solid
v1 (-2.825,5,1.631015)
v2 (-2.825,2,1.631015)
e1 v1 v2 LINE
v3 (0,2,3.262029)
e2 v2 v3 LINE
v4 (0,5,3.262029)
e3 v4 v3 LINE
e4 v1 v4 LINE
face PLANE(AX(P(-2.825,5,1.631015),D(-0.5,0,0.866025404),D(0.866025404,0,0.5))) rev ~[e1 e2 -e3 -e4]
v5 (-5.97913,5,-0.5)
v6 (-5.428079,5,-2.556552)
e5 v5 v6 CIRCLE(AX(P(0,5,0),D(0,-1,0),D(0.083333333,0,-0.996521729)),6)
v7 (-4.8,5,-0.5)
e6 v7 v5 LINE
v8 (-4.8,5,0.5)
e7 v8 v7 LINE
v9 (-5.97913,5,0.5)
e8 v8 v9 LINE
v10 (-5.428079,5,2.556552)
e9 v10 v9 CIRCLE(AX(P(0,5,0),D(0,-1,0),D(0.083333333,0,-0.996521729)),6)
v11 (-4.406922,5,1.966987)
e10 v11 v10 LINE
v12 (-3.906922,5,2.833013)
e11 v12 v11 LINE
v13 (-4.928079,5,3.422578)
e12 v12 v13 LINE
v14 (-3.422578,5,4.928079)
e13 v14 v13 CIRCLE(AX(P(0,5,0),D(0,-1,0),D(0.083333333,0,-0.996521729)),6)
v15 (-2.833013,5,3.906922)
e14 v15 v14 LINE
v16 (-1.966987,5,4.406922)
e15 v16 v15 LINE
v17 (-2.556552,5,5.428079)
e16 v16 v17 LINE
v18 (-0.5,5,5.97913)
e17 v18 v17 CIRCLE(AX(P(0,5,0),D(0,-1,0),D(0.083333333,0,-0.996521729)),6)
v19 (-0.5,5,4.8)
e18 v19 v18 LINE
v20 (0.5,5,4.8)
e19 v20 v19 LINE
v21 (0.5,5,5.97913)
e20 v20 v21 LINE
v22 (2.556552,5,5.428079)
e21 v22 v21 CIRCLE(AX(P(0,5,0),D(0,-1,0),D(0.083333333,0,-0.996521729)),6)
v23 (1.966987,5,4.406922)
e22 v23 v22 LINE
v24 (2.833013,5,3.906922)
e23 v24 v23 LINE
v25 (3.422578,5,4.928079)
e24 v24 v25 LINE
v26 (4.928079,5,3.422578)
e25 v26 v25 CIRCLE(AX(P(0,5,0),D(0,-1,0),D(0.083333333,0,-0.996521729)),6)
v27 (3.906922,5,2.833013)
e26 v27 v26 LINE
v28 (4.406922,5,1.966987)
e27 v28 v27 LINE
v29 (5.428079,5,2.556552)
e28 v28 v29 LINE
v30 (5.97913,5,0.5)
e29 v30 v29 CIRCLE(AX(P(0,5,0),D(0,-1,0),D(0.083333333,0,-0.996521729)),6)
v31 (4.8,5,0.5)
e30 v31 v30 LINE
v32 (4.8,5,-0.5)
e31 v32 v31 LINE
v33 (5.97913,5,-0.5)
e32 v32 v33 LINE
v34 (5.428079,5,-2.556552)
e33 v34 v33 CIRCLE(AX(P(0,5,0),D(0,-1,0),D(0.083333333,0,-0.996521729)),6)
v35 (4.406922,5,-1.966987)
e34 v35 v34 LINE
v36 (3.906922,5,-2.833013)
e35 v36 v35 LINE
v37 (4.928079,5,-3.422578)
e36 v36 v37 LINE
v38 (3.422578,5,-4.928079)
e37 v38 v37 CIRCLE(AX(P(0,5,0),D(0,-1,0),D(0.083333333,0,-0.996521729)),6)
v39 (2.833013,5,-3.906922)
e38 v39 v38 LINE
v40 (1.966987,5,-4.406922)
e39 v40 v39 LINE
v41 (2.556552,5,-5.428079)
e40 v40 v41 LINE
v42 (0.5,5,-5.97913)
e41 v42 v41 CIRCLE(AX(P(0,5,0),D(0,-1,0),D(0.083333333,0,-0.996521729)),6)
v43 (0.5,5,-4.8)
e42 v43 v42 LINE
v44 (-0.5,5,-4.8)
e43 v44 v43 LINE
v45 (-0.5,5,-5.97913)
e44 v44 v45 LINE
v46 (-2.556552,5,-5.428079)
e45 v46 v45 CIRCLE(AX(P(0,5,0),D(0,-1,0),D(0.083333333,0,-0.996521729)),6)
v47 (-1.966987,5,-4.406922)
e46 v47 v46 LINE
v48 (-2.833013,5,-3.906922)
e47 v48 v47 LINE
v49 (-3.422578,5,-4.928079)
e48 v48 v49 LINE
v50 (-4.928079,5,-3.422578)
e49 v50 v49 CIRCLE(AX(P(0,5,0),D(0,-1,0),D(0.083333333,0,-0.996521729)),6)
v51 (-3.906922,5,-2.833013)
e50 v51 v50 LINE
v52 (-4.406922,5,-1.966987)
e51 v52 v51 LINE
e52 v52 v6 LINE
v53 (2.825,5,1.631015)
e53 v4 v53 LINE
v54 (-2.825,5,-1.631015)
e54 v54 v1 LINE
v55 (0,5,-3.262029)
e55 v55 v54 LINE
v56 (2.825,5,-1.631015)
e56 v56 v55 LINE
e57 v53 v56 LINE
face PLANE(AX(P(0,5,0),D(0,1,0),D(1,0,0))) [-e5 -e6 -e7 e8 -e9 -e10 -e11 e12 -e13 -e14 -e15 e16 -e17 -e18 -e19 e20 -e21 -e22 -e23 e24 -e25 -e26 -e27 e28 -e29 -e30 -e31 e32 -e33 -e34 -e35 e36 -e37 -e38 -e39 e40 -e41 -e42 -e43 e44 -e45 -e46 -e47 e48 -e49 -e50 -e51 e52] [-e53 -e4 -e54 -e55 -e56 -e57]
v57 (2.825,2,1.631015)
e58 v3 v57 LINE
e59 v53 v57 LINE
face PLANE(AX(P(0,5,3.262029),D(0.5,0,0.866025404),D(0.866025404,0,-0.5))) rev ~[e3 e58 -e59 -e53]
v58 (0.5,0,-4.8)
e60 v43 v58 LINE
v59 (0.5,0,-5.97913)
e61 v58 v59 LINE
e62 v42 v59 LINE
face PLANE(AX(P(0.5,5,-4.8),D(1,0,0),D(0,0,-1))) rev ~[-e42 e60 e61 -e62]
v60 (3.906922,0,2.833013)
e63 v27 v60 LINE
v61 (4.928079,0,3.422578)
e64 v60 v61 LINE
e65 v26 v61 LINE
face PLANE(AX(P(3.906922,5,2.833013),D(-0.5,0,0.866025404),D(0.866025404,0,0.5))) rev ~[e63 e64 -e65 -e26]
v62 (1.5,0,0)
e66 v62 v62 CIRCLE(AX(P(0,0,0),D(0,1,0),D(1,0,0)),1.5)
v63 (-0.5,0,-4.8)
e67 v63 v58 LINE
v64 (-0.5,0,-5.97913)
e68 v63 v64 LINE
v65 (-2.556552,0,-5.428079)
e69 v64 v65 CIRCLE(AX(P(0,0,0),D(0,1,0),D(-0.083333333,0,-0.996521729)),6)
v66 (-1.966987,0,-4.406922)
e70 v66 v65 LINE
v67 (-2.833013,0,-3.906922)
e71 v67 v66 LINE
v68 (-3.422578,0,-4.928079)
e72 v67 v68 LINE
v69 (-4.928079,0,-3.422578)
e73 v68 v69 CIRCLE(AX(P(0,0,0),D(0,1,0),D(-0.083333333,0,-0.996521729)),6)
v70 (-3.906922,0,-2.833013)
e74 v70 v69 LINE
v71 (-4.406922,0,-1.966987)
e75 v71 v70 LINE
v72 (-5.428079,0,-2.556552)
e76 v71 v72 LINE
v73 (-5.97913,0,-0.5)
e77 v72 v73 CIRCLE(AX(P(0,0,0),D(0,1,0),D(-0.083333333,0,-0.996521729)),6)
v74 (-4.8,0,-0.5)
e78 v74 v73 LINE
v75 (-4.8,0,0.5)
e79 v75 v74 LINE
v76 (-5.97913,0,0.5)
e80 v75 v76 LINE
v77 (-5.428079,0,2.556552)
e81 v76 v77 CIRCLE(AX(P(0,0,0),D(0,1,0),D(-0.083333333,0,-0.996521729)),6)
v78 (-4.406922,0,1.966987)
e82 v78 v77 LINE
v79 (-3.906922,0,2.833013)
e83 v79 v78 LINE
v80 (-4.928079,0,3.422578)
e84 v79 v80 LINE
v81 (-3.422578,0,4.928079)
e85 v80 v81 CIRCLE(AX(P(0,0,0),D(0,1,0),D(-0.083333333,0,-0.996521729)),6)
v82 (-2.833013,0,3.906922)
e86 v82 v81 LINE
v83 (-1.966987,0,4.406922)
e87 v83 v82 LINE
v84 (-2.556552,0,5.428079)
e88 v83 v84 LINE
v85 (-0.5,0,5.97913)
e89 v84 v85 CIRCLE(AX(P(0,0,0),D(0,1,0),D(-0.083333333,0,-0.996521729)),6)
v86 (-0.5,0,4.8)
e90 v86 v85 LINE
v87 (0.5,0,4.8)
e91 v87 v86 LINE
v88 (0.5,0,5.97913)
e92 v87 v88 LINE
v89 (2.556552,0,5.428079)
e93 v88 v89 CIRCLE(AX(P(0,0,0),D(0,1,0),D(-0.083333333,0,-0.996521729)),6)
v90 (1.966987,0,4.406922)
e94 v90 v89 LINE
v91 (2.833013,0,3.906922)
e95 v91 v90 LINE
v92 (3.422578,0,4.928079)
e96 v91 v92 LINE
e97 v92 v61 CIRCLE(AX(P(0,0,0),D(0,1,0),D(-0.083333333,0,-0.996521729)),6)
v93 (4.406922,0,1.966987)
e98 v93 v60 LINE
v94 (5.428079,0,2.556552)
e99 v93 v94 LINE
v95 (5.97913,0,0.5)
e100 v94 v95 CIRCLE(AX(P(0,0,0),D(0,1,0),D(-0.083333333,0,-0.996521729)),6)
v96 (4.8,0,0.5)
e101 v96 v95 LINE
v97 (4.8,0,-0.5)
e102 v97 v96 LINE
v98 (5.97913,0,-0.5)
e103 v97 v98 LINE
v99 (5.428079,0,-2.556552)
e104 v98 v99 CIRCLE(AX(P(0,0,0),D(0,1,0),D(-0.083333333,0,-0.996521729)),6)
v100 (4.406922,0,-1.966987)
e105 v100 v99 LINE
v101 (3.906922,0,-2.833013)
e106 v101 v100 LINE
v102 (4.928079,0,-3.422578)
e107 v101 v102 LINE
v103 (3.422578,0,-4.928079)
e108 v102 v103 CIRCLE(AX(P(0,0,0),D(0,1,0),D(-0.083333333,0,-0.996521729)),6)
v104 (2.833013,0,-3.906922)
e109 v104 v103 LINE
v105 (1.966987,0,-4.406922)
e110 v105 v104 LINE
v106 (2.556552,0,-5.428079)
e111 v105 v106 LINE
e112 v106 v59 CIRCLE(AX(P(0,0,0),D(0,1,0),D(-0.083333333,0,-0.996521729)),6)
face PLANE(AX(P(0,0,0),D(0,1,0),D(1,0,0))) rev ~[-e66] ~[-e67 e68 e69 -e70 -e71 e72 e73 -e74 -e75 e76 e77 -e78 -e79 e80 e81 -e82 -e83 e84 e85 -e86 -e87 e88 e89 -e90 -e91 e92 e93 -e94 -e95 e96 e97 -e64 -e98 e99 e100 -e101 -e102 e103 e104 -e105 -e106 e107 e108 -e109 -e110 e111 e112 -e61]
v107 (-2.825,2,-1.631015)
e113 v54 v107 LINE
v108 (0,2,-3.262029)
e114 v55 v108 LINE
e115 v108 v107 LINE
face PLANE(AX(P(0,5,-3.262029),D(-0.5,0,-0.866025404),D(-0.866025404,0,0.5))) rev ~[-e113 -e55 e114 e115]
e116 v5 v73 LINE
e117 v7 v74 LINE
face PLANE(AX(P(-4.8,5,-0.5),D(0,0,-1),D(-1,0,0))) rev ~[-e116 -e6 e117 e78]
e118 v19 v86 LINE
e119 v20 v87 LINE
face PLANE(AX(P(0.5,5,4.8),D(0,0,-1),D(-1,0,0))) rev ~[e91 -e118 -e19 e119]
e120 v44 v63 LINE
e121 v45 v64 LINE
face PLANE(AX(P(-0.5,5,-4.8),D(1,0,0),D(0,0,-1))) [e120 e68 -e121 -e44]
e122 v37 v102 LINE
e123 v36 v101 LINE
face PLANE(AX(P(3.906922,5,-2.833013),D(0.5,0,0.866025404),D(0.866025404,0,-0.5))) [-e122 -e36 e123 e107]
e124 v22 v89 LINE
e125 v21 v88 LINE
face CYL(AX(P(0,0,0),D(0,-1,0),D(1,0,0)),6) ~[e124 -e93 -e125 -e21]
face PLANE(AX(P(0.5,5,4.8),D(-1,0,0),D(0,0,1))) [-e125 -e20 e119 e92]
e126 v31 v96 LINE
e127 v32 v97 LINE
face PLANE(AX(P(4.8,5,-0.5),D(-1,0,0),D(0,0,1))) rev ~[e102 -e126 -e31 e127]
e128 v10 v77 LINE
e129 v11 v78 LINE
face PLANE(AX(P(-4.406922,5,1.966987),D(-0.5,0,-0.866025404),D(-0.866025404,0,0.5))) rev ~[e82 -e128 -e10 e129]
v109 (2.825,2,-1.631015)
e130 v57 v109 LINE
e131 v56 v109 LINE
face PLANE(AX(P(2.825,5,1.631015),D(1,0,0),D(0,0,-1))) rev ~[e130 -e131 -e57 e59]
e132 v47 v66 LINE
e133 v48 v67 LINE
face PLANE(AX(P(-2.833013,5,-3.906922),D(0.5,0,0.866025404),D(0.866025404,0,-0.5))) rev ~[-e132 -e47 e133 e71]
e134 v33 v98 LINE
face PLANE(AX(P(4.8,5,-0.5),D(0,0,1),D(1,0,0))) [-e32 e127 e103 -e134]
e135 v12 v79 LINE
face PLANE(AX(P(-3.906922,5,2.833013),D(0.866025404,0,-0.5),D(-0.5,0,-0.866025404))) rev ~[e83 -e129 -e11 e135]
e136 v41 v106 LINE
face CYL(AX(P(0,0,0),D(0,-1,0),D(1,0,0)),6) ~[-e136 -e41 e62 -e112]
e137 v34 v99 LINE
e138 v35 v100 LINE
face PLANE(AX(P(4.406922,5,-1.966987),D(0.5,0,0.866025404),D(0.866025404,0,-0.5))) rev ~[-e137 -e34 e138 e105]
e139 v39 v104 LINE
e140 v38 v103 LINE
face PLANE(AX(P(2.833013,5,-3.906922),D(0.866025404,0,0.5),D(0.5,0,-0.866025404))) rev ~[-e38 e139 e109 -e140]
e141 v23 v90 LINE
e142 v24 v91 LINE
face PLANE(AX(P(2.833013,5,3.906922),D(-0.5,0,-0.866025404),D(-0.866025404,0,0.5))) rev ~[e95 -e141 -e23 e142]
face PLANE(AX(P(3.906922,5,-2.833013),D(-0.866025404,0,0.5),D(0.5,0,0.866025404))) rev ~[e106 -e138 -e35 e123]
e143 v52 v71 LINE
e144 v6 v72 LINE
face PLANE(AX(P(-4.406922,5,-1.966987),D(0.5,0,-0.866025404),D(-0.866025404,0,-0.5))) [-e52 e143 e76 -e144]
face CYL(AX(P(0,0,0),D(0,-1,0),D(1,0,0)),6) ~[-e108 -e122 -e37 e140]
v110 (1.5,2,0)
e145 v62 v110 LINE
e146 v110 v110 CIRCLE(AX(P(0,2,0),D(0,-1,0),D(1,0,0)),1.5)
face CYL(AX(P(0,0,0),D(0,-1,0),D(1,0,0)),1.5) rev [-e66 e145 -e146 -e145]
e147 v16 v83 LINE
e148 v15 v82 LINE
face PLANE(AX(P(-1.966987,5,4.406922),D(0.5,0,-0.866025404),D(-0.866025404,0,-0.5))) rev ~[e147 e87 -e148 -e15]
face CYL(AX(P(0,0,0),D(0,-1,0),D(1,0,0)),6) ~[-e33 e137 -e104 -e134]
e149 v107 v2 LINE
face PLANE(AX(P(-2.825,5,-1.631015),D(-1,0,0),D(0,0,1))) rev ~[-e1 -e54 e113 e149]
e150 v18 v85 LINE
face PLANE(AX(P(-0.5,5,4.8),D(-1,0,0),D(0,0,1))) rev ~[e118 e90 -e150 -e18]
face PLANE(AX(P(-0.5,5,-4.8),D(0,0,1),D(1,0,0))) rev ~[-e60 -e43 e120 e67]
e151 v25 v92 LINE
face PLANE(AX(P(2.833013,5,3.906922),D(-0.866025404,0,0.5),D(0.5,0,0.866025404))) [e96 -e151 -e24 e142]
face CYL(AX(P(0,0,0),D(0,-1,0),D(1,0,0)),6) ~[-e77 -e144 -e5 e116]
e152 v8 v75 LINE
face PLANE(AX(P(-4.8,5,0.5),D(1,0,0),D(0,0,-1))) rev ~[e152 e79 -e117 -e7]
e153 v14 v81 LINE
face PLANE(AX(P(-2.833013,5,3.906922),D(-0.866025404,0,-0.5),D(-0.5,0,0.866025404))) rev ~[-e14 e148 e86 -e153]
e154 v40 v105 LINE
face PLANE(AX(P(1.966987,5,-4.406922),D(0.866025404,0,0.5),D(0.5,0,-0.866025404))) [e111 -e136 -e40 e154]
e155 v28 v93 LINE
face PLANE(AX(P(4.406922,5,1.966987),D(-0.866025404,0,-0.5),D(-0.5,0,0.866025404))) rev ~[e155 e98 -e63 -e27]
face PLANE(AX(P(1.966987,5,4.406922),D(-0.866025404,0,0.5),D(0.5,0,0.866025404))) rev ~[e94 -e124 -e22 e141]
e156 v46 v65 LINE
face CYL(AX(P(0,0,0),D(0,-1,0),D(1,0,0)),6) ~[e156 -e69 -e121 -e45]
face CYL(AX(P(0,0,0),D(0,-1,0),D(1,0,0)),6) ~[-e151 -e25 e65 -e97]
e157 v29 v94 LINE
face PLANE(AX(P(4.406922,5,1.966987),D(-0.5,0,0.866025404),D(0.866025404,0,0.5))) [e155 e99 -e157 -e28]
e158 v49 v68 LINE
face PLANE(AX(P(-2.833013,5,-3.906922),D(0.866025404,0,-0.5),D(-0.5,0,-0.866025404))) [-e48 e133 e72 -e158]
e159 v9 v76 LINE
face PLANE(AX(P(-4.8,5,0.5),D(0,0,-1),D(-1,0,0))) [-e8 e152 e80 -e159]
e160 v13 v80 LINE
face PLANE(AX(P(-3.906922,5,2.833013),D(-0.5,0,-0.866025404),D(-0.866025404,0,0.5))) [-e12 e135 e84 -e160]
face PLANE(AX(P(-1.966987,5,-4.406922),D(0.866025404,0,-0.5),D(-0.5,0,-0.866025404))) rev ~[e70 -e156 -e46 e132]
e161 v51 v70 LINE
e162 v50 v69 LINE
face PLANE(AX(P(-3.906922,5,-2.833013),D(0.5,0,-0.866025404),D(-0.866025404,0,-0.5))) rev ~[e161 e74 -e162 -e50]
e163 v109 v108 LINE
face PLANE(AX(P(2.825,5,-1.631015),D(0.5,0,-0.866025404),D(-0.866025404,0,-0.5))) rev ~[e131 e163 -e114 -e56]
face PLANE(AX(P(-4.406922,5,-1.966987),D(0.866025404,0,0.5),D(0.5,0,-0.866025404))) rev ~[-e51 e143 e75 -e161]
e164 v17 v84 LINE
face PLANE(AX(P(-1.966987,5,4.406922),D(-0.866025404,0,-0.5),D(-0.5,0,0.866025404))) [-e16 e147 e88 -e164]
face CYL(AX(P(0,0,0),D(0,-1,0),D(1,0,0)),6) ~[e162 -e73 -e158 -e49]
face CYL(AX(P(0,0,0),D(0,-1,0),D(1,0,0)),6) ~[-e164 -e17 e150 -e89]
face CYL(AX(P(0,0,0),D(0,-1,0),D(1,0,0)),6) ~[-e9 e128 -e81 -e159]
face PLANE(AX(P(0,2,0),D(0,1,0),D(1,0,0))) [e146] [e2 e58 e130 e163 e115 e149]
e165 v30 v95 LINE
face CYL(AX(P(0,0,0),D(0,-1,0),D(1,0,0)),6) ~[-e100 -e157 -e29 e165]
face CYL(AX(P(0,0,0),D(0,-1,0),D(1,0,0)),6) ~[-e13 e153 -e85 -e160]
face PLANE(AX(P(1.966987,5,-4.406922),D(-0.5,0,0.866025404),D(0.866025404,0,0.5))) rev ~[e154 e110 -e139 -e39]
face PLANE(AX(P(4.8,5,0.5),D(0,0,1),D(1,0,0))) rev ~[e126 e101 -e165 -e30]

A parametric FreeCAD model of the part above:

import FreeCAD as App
import Part
import Sketcher
Q = App.Units.Quantity


def add_polygon(sketch, points):
    """Adds a closed chain of lines whose ends are joined by coincident constraints."""
    first, n = sketch.GeometryCount, len(points)
    for a, b in zip(points, points[1:] + points[:1]):
        sketch.addGeometry(Part.LineSegment(App.Vector(*a, 0), App.Vector(*b, 0)), False)
    for i in range(n):
        sketch.addConstraint(Sketcher.Constraint("Coincident", first + i, 2, first + (i + 1) % n, 1))

doc = App.newDocument("Part")
params = doc.addObject("Spreadsheet::Sheet", "Params")
for row, (alias, value) in enumerate([
    ("sketch1_diameter", "12 mm"),
    ("sketch1_diameter2", "3 mm"),
    ("pad1_length", "5 mm"),
    ("pocket1_length", "3 mm"),
    ("sketch3_width", "1 mm"),
    ("pocket2_length", "10 mm"),
], start=1):
    params.set(f"A{row}", alias)
    params.set(f"B{row}", "=" + value)
    params.setAlias(f"B{row}", alias)

body = doc.addObject("PartDesign::Body", "Body")

# Sketch on XZ plane
sketch1 = body.newObject("Sketcher::SketchObject", "Sketch")
sketch1.AttachmentSupport = (doc.getObject("XZ_Plane"), [""])
sketch1.MapMode = "FlatFace"
sketch1.addGeometry([
    Part.Circle(App.Vector(0, 0, 0), App.Vector(0, 0, 1), 6),
    Part.Circle(App.Vector(0, 0, 0), App.Vector(0, 0, 1), 1.5),
], False)
sketch1.addConstraint([
    Sketcher.Constraint("Coincident", 0, 3, -1, 1),
    Sketcher.Constraint("Coincident", 1, 3, -1, 1),
    Sketcher.Constraint("Diameter", 0, 12.0),
    Sketcher.Constraint("Diameter", 1, 3.0),
])
sketch1.setExpression("Constraints[2]", "Params.sketch1_diameter")
sketch1.setExpression("Constraints[3]", "Params.sketch1_diameter2")
pad1 = body.newObject("PartDesign::Pad", "Pad")
pad1.Profile = sketch1
pad1.setExpression("Length", "Params.pad1_length")
pad1.Reversed = True

# Sketch on XZ plane
sketch2 = body.newObject("Sketcher::SketchObject", "Sketch001")
sketch2.AttachmentSupport = (doc.getObject("XZ_Plane"), [""])
sketch2.MapMode = "FlatFace"
sketch2.AttachmentOffset = App.Placement(App.Vector(0, 0, -5), App.Rotation())
add_polygon(sketch2, [(2.825, 1.631015), (2.825, -1.631015), (0, -3.262029), (-2.825, -1.631015), (-2.825, 1.631015), (0, 3.262029)])  # lines 0-5
sketch2.addConstraint([
    Sketcher.Constraint("Vertical", 0),
    Sketcher.Constraint("Vertical", 3),
    Sketcher.Constraint("Symmetric", 0, 2, 3, 2, -1, 1),
    Sketcher.Constraint("Symmetric", 1, 2, 4, 2, -1, 1),
    Sketcher.Constraint("PointOnObject", 1, 2, -2),
    Sketcher.Constraint("Parallel", 2, 5),
    Sketcher.Constraint("Horizontal", 0, 2, 2, 2),
    Sketcher.Constraint("Angle", 1, Q("-150 deg")),
    Sketcher.Constraint("DistanceX", 2, 2, 0, 2, 5.65),
    Sketcher.Constraint("DistanceY", 0, 2, 0, 1, 3.262029),
])
pocket1 = body.newObject("PartDesign::Pocket", "Pocket")
pocket1.Profile = sketch2
pocket1.setExpression("Length", "Params.pocket1_length")
pocket1.Reversed = True

# Sketch on XZ plane
sketch3 = body.newObject("Sketcher::SketchObject", "Sketch002")
sketch3.AttachmentSupport = (doc.getObject("XZ_Plane"), [""])
sketch3.MapMode = "FlatFace"
sketch3.AttachmentOffset = App.Placement(App.Vector(0, 0, -5), App.Rotation())
add_polygon(sketch3, [(-0.5, -11.946819), (-0.5, -4.8), (0.5, -4.8), (0.5, -11.946819)])  # lines 0-3
sketch3.addConstraint([
    Sketcher.Constraint("Vertical", 0),
    Sketcher.Constraint("Horizontal", 1),
    Sketcher.Constraint("Vertical", 2),
    Sketcher.Constraint("Horizontal", 3),
    Sketcher.Constraint("DistanceX", 1, 1, 1, 2, 1.0),
    Sketcher.Constraint("DistanceX", 0, 2, -1, 1, 0.5),
    Sketcher.Constraint("DistanceY", 0, 2, -1, 1, 4.8),
    Sketcher.Constraint("DistanceY", 0, 1, 0, 2, 7.146819),
])
sketch3.setExpression("Constraints[8]", "Params.sketch3_width")
pocket2 = body.newObject("PartDesign::Pocket", "Pocket001")
pocket2.Profile = sketch3
pocket2.setExpression("Length", "Params.pocket2_length")
pocket2.Reversed = True
doc.recompute()

polarpattern = body.newObject("PartDesign::PolarPattern", "PolarPattern")
polarpattern.Originals = [pocket2]
polarpattern.Axis = (doc.getObject("Y_Axis"), [""])
polarpattern.Angle = 360
polarpattern.Occurrences = 12
body.Tip = polarpattern

doc.recompute()
